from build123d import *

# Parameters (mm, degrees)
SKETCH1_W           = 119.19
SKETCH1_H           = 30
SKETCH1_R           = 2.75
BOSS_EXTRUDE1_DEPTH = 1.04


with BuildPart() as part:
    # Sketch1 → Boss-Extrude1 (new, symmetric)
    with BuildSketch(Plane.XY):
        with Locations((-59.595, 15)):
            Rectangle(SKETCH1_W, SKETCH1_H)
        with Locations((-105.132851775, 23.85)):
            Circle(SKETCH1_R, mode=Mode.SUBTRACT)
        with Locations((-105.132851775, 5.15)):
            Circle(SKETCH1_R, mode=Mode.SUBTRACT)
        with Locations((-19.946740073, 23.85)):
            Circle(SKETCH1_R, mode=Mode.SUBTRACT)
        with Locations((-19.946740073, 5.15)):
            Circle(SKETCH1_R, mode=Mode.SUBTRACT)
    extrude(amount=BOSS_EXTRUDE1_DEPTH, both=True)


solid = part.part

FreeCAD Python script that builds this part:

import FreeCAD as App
import Part
import Sketcher
from FreeCAD import Vector
Q = App.Units.Quantity

doc = App.newDocument("Part")
body = doc.addObject("PartDesign::Body", "Body")

sketch1 = body.newObject("Sketcher::SketchObject", "Sketch")
sketch1.AttachmentSupport = (doc.getObject("XY_Plane"), [""])
sketch1.MapMode = "FlatFace"
sketch1.addGeometry(Part.LineSegment(Vector(-119.2, 30, 0), Vector(-119.2, 0, 0)), False)
sketch1.addGeometry(Part.LineSegment(Vector(-119.2, 0, 0), Vector(0, 0, 0)), False)
sketch1.addGeometry(Part.LineSegment(Vector(0, 0, 0), Vector(0, 30, 0)), False)
sketch1.addGeometry(Part.LineSegment(Vector(0, 30, 0), Vector(-119.2, 30, 0)), False)
sketch1.addGeometry(Part.Circle(Vector(-105.1, 5.2, 0), Vector(0, 0, 1), 2.8), False)
sketch1.addGeometry(Part.Circle(Vector(-19.9, 5.2, 0), Vector(0, 0, 1), 2.8), False)
sketch1.addGeometry(Part.Circle(Vector(-105.1, 23.9, 0), Vector(0, 0, 1), 2.8), False)
sketch1.addGeometry(Part.Circle(Vector(-19.9, 23.9, 0), Vector(0, 0, 1), 2.8), False)
sketch1.addConstraint(Sketcher.Constraint("Coincident", 0, 2, 1, 1))
sketch1.addConstraint(Sketcher.Constraint("Coincident", 1, 2, 2, 1))
sketch1.addConstraint(Sketcher.Constraint("Coincident", 2, 2, 3, 1))
sketch1.addConstraint(Sketcher.Constraint("Coincident", 3, 2, 0, 1))
sketch1.addConstraint(Sketcher.Constraint("Vertical", 0))
sketch1.addConstraint(Sketcher.Constraint("Horizontal", 1))
sketch1.addConstraint(Sketcher.Constraint("Vertical", 2))
sketch1.addConstraint(Sketcher.Constraint("Horizontal", 3))
sketch1.addConstraint(Sketcher.Constraint("Coincident", 1, 2, -1, 1))
sketch1.addConstraint(Sketcher.Constraint("Equal", 4, 5))
sketch1.addConstraint(Sketcher.Constraint("Equal", 5, 6))
sketch1.addConstraint(Sketcher.Constraint("Equal", 6, 7))
sketch1.addConstraint(Sketcher.Constraint("Horizontal", 4, 3, 5, 3))
sketch1.addConstraint(Sketcher.Constraint("Horizontal", 6, 3, 7, 3))
sketch1.addConstraint(Sketcher.Constraint("Vertical", 4, 3, 6, 3))
sketch1.addConstraint(Sketcher.Constraint("Vertical", 5, 3, 7, 3))
sketch1.addConstraint(Sketcher.Constraint("Diameter", 4, Q("5.5 mm")))
sketch1.addConstraint(Sketcher.Constraint("DistanceY", 0, 2, 0, 1, Q("30 mm")))
sketch1.addConstraint(Sketcher.Constraint("DistanceX", 1, 1, 1, 2, Q("119.19 mm")))
sketch1.addConstraint(Sketcher.Constraint("DistanceY", 4, 3, 6, 3, Q("18.7 mm")))
sketch1.addConstraint(Sketcher.Constraint("DistanceY", -1, 1, 4, 3, Q("5.15 mm")))
sketch1.addConstraint(Sketcher.Constraint("DistanceX", 4, 3, -1, 1, Q("105.132852 mm")))
sketch1.addConstraint(Sketcher.Constraint("DistanceX", 5, 3, -1, 1, Q("19.94674 mm")))
pad1 = body.newObject("PartDesign::Pad", "Pad")
pad1.Profile = sketch1
pad1.Length = 2.08
pad1.Midplane = True

doc.recompute()
